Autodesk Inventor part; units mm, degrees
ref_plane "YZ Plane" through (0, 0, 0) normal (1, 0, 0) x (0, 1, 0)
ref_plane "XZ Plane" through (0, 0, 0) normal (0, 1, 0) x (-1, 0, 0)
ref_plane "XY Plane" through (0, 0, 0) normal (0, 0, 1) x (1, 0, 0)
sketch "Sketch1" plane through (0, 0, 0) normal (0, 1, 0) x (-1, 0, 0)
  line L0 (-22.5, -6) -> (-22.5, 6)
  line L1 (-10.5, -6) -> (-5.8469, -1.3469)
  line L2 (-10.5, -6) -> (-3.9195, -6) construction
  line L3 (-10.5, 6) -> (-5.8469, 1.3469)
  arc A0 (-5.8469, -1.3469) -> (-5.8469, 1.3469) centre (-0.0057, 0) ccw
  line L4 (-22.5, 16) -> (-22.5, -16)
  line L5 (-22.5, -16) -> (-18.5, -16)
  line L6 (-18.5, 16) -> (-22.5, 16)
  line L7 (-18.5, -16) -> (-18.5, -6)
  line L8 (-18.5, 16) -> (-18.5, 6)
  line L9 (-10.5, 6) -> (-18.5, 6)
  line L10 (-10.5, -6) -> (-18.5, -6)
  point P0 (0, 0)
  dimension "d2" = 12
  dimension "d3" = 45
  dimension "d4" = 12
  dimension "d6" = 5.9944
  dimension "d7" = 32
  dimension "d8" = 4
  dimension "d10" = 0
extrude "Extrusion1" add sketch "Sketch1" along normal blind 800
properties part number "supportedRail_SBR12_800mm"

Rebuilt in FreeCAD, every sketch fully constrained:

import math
import FreeCAD as App
import Part
import Sketcher
Q = App.Units.Quantity

doc = App.newDocument("Part")
params = doc.addObject("Spreadsheet::Sheet", "Params")
for row, (alias, value) in enumerate([
    ("sketch1_width", "4 mm"),
    ("sketch1_height", "32 mm"),
    ("pad1_length", "800 mm"),
], start=1):
    params.set(f"A{row}", alias)
    params.set(f"B{row}", "=" + value)
    params.setAlias(f"B{row}", alias)

body = doc.addObject("PartDesign::Body", "Body")

# Sketch on XZ plane
sketch1 = body.newObject("Sketcher::SketchObject", "Sketch")
sketch1.AttachmentSupport = (doc.getObject("XZ_Plane"), [""])
sketch1.MapMode = "FlatFace"
sketch1.addGeometry(Part.LineSegment(App.Vector(22.5, 16, 0), App.Vector(22.5, -16, 0)), False)
sketch1.addGeometry(Part.LineSegment(App.Vector(22.5, -16, 0), App.Vector(18.5, -16, 0)), False)
sketch1.addGeometry(Part.LineSegment(App.Vector(18.5, -16, 0), App.Vector(18.5, -6, 0)), False)
sketch1.addGeometry(Part.LineSegment(App.Vector(18.5, -6, 0), App.Vector(10.5, -6, 0)), False)
sketch1.addGeometry(Part.LineSegment(App.Vector(10.5, -6, 0), App.Vector(5.8469, -1.3469, 0)), False)
sketch1.addGeometry(Part.ArcOfCircle(Part.Circle(App.Vector(0.0057, 0, 0), App.Vector(0, 0, 1), 5.994477), math.radians(12.984659), math.radians(347.015341)), False)
sketch1.addGeometry(Part.LineSegment(App.Vector(5.8469, 1.3469, 0), App.Vector(10.5, 6, 0)), False)
sketch1.addGeometry(Part.LineSegment(App.Vector(10.5, 6, 0), App.Vector(18.5, 6, 0)), False)
sketch1.addGeometry(Part.LineSegment(App.Vector(18.5, 6, 0), App.Vector(18.5, 16, 0)), False)
sketch1.addGeometry(Part.LineSegment(App.Vector(18.5, 16, 0), App.Vector(22.5, 16, 0)), False)
sketch1.addConstraint(Sketcher.Constraint("Coincident", 0, 2, 1, 1))
sketch1.addConstraint(Sketcher.Constraint("Coincident", 1, 2, 2, 1))
sketch1.addConstraint(Sketcher.Constraint("Coincident", 2, 2, 3, 1))
sketch1.addConstraint(Sketcher.Constraint("Coincident", 3, 2, 4, 1))
sketch1.addConstraint(Sketcher.Constraint("Coincident", 4, 2, 5, 2))
sketch1.addConstraint(Sketcher.Constraint("Coincident", 5, 1, 6, 1))
sketch1.addConstraint(Sketcher.Constraint("Coincident", 6, 2, 7, 1))
sketch1.addConstraint(Sketcher.Constraint("Coincident", 7, 2, 8, 1))
sketch1.addConstraint(Sketcher.Constraint("Coincident", 8, 2, 9, 1))
sketch1.addConstraint(Sketcher.Constraint("Coincident", 9, 2, 0, 1))
sketch1.addConstraint(Sketcher.Constraint("Vertical", 0))
sketch1.addConstraint(Sketcher.Constraint("Horizontal", 1))
sketch1.addConstraint(Sketcher.Constraint("Vertical", 2))
sketch1.addConstraint(Sketcher.Constraint("Horizontal", 3))
sketch1.addConstraint(Sketcher.Constraint("Horizontal", 7))
sketch1.addConstraint(Sketcher.Constraint("Vertical", 8))
sketch1.addConstraint(Sketcher.Constraint("Horizontal", 9))
sketch1.addConstraint(Sketcher.Constraint("Symmetric", 4, 2, 5, 1, -1))
sketch1.addConstraint(Sketcher.Constraint("Symmetric", 3, 2, 6, 2, -1))
sketch1.addConstraint(Sketcher.Constraint("Symmetric", 1, 2, 8, 2, -1))
sketch1.addConstraint(Sketcher.Constraint("Perpendicular", 4, 6))
sketch1.addConstraint(Sketcher.Constraint("DistanceX", 1, 2, 1, 1, Q("4 mm")))
sketch1.addConstraint(Sketcher.Constraint("DistanceY", 0, 2, 0, 1, Q("32 mm")))
sketch1.addConstraint(Sketcher.Constraint("DistanceX", 3, 2, 0, 2, Q("12 mm")))
sketch1.addConstraint(Sketcher.Constraint("DistanceY", 3, 2, 6, 2, Q("12 mm")))
sketch1.addConstraint(Sketcher.Constraint("Radius", 5, Q("5.9945 mm")))
sketch1.addConstraint(Sketcher.Constraint("DistanceX", -1, 1, 0, 2, Q("22.5 mm")))
sketch1.addConstraint(Sketcher.Constraint("DistanceX", -1, 1, 4, 2, Q("5.847 mm")))
sketch1.setExpression("Constraints[21]", "Params.sketch1_width")
sketch1.setExpression("Constraints[22]", "Params.sketch1_height")
pad1 = body.newObject("PartDesign::Pad", "Pad")
pad1.Profile = sketch1
pad1.setExpression("Length", "Params.pad1_length")
pad1.Reversed = True

doc.recompute()
